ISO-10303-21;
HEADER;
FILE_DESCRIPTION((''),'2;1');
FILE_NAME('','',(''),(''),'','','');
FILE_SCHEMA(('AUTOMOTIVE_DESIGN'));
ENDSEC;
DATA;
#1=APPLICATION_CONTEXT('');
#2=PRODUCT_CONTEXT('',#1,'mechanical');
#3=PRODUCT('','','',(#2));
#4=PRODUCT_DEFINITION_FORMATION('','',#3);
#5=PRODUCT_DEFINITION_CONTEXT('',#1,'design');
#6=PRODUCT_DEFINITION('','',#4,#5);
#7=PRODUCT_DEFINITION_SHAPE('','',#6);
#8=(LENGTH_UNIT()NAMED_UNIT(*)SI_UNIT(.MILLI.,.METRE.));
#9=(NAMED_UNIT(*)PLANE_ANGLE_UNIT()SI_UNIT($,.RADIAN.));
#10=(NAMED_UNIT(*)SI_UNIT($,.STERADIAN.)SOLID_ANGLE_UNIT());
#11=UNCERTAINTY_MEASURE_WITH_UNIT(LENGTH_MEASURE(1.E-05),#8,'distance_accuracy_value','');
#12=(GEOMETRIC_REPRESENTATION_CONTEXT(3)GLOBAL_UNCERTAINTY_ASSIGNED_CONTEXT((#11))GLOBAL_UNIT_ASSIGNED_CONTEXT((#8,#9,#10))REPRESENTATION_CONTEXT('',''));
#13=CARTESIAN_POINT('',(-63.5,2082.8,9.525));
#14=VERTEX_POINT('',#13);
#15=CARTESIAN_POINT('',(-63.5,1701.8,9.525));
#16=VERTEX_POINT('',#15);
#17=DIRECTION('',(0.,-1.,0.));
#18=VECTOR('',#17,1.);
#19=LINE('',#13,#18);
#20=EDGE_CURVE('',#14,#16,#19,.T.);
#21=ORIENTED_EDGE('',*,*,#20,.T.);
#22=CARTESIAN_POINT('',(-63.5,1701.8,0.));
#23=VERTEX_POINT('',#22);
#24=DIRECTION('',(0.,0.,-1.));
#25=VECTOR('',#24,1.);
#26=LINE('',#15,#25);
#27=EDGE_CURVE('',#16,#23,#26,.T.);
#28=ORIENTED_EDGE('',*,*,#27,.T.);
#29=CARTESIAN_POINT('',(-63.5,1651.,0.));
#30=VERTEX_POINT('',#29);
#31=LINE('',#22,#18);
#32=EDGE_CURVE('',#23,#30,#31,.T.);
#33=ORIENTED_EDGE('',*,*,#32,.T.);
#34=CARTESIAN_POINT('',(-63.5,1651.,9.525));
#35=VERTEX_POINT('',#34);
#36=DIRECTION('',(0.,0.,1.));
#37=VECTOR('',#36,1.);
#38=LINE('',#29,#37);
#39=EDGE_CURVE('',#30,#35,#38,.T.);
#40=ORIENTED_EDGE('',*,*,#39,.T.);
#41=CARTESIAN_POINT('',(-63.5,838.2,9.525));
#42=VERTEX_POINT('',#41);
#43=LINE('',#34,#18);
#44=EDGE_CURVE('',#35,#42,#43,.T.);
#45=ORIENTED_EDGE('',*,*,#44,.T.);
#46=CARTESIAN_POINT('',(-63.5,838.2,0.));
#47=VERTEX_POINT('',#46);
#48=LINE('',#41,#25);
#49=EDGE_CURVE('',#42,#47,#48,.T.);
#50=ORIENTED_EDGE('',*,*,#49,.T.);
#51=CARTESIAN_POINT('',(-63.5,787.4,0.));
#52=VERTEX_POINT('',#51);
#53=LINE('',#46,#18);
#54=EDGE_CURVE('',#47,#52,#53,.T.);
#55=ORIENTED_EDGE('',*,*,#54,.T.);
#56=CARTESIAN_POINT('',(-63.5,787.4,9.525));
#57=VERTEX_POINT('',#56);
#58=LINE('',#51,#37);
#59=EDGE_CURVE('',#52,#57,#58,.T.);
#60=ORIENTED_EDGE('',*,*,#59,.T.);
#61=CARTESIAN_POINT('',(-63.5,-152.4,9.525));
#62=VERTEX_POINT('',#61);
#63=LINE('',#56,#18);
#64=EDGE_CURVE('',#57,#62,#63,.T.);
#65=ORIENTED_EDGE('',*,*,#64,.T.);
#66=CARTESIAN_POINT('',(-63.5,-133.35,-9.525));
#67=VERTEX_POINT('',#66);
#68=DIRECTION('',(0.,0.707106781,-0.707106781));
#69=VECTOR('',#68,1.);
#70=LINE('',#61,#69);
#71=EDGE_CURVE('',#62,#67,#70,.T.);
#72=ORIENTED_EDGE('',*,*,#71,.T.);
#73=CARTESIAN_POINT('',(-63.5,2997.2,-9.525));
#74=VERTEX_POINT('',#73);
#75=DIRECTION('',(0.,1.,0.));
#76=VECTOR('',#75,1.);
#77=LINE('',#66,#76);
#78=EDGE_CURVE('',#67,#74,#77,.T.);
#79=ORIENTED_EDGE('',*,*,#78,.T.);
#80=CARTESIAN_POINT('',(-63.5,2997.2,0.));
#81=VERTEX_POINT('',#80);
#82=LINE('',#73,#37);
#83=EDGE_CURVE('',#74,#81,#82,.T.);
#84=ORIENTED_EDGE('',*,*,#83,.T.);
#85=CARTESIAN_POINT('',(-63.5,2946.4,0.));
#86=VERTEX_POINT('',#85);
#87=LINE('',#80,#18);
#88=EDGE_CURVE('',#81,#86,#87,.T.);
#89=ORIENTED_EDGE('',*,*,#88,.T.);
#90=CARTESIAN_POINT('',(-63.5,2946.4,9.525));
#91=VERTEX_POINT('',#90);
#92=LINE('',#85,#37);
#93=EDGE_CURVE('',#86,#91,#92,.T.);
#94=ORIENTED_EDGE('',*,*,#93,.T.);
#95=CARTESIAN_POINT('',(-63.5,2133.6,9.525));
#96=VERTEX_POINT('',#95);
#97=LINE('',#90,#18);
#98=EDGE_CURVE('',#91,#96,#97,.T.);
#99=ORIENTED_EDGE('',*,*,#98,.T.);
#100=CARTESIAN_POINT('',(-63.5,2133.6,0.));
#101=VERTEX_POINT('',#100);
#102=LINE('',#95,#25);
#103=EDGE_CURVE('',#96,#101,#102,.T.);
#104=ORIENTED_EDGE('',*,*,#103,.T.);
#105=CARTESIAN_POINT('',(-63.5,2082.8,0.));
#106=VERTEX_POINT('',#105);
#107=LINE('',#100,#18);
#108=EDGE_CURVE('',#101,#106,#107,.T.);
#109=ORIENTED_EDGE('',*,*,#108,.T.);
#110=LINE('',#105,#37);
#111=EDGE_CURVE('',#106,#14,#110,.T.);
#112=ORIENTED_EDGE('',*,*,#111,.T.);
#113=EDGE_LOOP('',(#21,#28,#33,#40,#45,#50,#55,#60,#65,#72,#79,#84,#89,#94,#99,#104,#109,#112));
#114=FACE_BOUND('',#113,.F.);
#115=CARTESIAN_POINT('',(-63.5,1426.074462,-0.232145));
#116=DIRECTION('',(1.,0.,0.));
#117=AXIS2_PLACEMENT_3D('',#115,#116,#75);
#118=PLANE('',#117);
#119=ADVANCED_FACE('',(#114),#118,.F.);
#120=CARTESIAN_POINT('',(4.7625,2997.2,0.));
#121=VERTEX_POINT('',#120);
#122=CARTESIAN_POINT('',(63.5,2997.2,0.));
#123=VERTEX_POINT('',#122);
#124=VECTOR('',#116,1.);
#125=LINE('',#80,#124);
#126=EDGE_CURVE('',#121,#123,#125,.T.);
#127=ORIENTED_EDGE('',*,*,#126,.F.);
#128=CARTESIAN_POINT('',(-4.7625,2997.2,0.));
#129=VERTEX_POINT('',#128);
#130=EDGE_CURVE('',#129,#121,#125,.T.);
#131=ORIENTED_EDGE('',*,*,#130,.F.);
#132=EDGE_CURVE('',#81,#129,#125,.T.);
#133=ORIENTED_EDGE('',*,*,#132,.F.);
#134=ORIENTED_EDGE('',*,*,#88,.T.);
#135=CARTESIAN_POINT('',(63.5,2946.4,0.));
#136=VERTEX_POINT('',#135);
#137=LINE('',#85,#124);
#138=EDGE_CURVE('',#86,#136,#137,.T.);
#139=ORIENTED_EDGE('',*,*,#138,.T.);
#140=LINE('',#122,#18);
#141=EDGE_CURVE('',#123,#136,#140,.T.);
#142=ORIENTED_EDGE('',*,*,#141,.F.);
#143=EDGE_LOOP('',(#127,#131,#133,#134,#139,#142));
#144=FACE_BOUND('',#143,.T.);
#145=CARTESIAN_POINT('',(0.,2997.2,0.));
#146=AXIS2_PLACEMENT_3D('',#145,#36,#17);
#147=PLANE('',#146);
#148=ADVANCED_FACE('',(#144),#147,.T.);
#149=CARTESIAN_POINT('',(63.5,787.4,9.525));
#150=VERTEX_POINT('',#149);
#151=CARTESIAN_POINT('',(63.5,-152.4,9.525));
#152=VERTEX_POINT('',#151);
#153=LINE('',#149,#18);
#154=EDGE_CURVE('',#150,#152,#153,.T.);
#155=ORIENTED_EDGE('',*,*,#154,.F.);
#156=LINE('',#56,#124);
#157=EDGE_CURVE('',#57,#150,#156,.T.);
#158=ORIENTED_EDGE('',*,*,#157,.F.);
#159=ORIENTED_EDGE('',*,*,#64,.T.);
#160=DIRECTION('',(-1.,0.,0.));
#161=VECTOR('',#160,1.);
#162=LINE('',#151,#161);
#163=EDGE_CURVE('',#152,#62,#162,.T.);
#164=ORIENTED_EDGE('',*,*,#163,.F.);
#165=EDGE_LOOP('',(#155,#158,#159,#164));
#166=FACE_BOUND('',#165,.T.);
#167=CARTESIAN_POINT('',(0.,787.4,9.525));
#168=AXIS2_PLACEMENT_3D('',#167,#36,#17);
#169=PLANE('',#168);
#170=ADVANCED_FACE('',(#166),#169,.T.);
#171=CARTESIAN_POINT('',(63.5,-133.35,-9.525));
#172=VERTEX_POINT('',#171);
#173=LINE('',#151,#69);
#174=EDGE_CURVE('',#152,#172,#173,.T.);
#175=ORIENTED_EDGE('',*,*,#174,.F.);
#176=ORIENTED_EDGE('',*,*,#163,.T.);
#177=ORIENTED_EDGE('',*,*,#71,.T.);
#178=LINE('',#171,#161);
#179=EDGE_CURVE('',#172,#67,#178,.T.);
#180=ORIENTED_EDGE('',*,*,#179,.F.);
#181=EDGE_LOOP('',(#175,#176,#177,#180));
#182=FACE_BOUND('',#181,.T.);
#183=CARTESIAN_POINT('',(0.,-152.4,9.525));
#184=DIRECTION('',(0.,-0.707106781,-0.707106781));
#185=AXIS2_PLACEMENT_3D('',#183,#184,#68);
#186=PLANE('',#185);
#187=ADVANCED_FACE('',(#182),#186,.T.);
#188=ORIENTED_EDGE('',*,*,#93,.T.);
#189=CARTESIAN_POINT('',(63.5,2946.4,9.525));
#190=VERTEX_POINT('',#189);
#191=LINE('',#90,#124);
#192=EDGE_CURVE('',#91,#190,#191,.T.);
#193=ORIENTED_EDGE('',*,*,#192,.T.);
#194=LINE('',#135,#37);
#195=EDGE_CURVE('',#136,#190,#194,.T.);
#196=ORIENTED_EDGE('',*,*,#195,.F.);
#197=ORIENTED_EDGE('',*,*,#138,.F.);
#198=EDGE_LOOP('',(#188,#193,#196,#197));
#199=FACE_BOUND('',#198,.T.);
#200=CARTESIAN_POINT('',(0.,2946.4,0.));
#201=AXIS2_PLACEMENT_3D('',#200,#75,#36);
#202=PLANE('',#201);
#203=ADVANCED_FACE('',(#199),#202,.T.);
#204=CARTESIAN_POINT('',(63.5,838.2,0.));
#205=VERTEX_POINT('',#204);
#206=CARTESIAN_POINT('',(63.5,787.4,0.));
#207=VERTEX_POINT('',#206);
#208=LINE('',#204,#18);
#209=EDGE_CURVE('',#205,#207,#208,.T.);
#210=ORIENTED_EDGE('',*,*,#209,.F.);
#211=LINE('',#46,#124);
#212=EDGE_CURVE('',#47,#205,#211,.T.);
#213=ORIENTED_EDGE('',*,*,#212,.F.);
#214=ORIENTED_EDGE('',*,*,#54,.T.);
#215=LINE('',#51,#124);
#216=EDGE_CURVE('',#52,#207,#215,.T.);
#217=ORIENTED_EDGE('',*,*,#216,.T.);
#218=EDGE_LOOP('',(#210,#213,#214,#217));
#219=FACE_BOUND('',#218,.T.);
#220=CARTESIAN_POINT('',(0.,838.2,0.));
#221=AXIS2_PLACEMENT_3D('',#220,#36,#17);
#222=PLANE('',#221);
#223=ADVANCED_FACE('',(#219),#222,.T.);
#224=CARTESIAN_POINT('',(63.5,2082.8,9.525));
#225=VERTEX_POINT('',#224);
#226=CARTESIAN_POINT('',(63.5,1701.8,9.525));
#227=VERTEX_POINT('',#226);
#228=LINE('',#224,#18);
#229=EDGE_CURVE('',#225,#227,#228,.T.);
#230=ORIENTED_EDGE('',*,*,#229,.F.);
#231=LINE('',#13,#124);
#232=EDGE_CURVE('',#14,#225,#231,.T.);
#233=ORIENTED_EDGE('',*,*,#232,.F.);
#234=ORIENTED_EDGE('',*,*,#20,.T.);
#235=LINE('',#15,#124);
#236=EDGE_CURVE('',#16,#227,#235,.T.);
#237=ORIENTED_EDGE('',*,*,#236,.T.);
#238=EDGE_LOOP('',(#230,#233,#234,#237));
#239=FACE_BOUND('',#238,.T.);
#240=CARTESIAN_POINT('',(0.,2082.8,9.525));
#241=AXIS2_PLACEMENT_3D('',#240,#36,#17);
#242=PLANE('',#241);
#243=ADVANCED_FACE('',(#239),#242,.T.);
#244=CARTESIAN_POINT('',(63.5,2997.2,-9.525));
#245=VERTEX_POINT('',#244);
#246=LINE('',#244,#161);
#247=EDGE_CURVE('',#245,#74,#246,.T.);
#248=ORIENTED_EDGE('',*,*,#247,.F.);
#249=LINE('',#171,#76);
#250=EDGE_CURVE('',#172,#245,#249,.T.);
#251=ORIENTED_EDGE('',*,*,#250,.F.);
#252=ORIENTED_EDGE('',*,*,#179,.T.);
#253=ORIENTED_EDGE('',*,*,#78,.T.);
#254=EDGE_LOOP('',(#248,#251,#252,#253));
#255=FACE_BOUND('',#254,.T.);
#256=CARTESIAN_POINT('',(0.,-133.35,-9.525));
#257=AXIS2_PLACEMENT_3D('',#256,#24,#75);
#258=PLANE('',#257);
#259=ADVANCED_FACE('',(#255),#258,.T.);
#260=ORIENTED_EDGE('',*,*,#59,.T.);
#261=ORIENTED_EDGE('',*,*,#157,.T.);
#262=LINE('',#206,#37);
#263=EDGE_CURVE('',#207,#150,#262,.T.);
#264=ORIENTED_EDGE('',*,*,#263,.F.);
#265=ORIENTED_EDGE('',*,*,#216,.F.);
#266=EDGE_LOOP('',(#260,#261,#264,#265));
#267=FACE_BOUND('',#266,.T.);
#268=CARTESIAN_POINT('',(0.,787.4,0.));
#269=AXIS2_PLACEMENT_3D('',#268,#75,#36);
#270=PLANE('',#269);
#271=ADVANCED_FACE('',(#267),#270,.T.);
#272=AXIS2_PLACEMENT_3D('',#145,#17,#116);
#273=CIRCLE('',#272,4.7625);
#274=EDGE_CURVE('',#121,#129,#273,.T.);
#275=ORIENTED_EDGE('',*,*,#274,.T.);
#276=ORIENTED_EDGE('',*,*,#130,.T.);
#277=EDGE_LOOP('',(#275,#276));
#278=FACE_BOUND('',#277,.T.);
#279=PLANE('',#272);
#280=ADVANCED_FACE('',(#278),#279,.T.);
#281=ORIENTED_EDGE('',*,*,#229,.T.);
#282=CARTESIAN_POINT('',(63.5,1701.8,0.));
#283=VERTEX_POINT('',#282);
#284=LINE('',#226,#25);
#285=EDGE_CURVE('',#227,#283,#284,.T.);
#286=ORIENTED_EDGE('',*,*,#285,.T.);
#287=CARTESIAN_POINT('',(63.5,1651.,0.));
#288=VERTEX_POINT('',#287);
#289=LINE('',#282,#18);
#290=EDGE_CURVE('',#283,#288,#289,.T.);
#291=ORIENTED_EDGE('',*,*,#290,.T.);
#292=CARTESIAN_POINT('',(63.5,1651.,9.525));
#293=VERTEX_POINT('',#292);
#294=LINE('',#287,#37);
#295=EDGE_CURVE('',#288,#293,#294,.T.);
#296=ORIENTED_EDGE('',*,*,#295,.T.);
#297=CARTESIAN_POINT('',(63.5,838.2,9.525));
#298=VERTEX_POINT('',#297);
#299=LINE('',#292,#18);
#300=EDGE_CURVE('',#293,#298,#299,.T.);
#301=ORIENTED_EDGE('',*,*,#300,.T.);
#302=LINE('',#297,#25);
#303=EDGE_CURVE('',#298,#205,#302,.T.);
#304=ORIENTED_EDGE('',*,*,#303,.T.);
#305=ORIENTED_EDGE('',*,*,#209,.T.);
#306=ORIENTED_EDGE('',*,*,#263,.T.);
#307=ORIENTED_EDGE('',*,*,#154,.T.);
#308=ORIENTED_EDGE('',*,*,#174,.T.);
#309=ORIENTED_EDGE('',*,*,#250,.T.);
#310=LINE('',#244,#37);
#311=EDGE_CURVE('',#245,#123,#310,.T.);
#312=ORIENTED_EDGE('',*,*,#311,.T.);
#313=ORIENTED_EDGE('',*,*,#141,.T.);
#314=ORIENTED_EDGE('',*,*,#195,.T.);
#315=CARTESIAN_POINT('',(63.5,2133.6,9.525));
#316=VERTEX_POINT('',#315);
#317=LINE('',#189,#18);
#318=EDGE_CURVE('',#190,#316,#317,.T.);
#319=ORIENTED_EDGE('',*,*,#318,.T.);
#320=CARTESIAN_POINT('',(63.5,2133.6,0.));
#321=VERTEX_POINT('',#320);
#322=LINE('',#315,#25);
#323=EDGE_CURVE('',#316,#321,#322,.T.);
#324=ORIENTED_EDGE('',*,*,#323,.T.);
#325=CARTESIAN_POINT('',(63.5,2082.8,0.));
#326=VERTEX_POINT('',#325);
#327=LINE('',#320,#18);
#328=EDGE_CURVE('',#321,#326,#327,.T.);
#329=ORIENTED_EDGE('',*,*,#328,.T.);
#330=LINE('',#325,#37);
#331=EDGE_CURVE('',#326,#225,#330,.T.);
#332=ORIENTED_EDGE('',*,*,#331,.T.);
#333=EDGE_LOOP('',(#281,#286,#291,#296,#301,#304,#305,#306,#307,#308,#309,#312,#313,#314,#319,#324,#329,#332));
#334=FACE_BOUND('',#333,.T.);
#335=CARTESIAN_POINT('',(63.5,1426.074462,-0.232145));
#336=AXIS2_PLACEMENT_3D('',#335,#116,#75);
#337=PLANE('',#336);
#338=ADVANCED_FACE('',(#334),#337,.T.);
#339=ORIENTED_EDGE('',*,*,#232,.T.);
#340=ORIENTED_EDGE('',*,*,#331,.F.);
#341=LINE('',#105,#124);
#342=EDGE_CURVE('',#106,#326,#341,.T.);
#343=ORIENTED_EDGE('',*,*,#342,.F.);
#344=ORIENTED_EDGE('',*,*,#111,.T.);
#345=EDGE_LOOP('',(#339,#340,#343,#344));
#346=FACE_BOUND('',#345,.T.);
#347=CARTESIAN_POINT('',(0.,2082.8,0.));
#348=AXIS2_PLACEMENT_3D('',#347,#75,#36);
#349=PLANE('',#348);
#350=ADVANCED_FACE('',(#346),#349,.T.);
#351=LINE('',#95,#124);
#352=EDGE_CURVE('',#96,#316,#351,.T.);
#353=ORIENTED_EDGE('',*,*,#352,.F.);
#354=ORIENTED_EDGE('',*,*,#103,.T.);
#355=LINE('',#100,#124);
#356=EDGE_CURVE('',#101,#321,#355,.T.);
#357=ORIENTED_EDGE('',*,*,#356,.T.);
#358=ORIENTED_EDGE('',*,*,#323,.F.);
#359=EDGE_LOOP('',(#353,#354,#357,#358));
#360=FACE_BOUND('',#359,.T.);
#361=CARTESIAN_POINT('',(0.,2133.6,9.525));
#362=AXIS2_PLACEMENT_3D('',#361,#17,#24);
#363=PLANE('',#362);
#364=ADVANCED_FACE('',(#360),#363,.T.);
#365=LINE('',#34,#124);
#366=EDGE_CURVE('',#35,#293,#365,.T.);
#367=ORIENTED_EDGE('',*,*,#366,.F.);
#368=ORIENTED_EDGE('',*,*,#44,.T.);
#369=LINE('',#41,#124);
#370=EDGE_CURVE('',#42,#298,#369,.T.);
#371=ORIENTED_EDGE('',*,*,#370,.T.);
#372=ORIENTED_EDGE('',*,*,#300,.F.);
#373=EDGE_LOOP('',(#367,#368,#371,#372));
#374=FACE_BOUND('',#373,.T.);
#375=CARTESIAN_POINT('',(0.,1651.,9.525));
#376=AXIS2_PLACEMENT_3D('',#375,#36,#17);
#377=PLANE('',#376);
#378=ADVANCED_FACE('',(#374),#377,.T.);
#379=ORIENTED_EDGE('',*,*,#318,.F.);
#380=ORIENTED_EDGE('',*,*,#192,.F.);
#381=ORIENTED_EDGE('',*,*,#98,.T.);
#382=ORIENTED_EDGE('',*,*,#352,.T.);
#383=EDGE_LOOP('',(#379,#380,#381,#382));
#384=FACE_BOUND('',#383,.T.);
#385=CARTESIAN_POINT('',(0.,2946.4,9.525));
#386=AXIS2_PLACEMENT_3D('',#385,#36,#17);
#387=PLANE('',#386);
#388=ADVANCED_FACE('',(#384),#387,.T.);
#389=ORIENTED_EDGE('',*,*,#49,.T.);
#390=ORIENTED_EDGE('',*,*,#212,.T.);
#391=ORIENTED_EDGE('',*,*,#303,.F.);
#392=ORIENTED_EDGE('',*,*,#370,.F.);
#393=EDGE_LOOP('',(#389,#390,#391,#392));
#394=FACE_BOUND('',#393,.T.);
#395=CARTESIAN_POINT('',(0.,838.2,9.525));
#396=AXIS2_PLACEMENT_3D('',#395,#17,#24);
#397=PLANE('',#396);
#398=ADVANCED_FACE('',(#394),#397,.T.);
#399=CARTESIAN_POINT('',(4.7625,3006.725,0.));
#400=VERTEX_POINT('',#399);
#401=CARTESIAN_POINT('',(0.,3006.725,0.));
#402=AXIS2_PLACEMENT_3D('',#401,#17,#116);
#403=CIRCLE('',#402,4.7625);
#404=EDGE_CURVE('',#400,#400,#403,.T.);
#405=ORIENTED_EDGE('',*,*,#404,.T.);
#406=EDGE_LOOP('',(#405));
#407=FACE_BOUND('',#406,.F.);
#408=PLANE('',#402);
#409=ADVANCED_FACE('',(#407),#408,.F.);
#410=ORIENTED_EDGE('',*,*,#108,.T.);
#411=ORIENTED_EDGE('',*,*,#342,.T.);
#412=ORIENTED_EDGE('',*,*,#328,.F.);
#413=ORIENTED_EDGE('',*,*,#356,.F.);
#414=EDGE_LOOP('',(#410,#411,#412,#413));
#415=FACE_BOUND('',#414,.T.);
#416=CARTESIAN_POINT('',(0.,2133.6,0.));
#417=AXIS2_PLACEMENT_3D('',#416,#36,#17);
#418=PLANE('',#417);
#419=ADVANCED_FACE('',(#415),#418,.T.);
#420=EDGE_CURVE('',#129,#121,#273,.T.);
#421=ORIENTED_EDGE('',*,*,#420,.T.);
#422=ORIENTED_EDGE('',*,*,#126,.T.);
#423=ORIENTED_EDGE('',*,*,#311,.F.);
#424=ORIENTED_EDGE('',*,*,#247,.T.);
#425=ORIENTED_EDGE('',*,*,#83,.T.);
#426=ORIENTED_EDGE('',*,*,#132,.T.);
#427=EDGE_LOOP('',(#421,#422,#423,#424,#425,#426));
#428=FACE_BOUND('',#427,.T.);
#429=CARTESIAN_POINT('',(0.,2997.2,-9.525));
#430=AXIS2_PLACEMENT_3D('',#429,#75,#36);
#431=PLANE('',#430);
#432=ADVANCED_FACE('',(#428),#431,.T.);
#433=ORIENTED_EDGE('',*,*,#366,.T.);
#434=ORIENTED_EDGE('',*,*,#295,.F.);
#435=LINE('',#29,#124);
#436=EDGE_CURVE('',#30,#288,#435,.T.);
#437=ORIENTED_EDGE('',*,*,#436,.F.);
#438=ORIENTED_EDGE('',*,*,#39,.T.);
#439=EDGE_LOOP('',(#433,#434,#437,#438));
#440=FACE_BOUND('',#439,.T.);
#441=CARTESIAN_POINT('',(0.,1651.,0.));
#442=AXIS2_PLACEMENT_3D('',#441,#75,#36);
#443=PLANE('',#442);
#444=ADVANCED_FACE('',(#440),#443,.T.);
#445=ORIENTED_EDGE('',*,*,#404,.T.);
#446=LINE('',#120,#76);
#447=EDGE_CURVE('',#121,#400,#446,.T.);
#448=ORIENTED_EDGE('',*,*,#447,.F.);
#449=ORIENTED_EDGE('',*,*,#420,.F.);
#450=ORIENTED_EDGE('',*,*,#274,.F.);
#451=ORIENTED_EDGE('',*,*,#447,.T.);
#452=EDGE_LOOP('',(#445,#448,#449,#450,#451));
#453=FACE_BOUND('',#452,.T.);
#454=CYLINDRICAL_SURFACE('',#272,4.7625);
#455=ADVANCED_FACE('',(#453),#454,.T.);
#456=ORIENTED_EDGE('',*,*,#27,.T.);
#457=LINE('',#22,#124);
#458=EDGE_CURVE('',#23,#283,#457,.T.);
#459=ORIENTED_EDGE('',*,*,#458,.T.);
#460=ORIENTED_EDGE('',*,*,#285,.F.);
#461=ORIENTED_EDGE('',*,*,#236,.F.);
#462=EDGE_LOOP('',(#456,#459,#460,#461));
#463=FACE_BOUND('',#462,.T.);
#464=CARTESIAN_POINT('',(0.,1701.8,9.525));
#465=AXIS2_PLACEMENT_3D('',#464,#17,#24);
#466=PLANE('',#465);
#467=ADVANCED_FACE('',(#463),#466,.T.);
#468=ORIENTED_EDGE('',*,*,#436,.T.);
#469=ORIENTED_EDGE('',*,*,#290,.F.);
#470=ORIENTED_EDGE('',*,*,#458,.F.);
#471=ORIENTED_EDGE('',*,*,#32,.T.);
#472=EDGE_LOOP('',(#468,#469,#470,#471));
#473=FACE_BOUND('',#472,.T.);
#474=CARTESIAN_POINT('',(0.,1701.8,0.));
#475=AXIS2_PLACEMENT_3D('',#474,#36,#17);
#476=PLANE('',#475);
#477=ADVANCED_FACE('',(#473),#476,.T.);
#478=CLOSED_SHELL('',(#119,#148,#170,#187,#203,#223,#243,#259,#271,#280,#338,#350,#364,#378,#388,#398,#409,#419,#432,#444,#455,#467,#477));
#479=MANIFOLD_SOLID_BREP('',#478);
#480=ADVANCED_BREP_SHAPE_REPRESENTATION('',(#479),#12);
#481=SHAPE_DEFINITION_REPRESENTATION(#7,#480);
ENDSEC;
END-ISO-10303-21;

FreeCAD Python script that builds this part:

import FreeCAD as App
import Part
import Sketcher

V = App.Vector
Q = App.Units.Quantity

doc = App.newDocument("Part")
body = doc.addObject("PartDesign::Body", "Body")

# Sketch on YZ plane
sketch1 = body.newObject("Sketcher::SketchObject", "Sketch")
sketch1.AttachmentSupport = (doc.getObject("YZ_Plane"), [""])
sketch1.MapMode = "FlatFace"
sketch1.addGeometry([
    Part.LineSegment(V(2997, -10, 0), V(2997, 0, 0)),  # 0
    Part.LineSegment(V(2997, 0, 0), V(2946, 0, 0)),  # 1
    Part.LineSegment(V(2946, 0, 0), V(2946, 10, 0)),  # 2
    Part.LineSegment(V(2946, 10, 0), V(2134, 10, 0)),  # 3
    Part.LineSegment(V(2134, 10, 0), V(2134, 0, 0)),  # 4
    Part.LineSegment(V(2134, 0, 0), V(2083, 0, 0)),  # 5
    Part.LineSegment(V(2083, 0, 0), V(2083, 10, 0)),  # 6
    Part.LineSegment(V(2083, 10, 0), V(1702, 10, 0)),  # 7
    Part.LineSegment(V(1702, 10, 0), V(1702, 0, 0)),  # 8
    Part.LineSegment(V(1702, 0, 0), V(1651, 0, 0)),  # 9
    Part.LineSegment(V(1651, 0, 0), V(1651, 10, 0)),  # 10
    Part.LineSegment(V(1651, 10, 0), V(838, 10, 0)),  # 11
    Part.LineSegment(V(838, 10, 0), V(838, 0, 0)),  # 12
    Part.LineSegment(V(838, 0, 0), V(787, 0, 0)),  # 13
    Part.LineSegment(V(787, 0, 0), V(787, 10, 0)),  # 14
    Part.LineSegment(V(787, 10, 0), V(-152, 10, 0)),  # 15
    Part.LineSegment(V(-152, 10, 0), V(-133, -10, 0)),  # 16
    Part.LineSegment(V(-133, -10, 0), V(2997, -10, 0)),  # 17
], False)
sketch1.addConstraint([
    Sketcher.Constraint("Coincident", 0, 2, 1, 1),
    Sketcher.Constraint("Coincident", 1, 2, 2, 1),
    Sketcher.Constraint("Coincident", 2, 2, 3, 1),
    Sketcher.Constraint("Coincident", 3, 2, 4, 1),
    Sketcher.Constraint("Coincident", 4, 2, 5, 1),
    Sketcher.Constraint("Coincident", 5, 2, 6, 1),
    Sketcher.Constraint("Coincident", 6, 2, 7, 1),
    Sketcher.Constraint("Coincident", 7, 2, 8, 1),
    Sketcher.Constraint("Coincident", 8, 2, 9, 1),
    Sketcher.Constraint("Coincident", 9, 2, 10, 1),
    Sketcher.Constraint("Coincident", 10, 2, 11, 1),
    Sketcher.Constraint("Coincident", 11, 2, 12, 1),
    Sketcher.Constraint("Coincident", 12, 2, 13, 1),
    Sketcher.Constraint("Coincident", 13, 2, 14, 1),
    Sketcher.Constraint("Coincident", 14, 2, 15, 1),
    Sketcher.Constraint("Coincident", 15, 2, 16, 1),
    Sketcher.Constraint("Coincident", 16, 2, 17, 1),
    Sketcher.Constraint("Coincident", 17, 2, 0, 1),
    Sketcher.Constraint("Vertical", 0),
    Sketcher.Constraint("Horizontal", 1),
    Sketcher.Constraint("Vertical", 2),
    Sketcher.Constraint("Horizontal", 3),
    Sketcher.Constraint("Vertical", 4),
    Sketcher.Constraint("Horizontal", 5),
    Sketcher.Constraint("Vertical", 6),
    Sketcher.Constraint("Horizontal", 7),
    Sketcher.Constraint("Vertical", 8),
    Sketcher.Constraint("Horizontal", 9),
    Sketcher.Constraint("Vertical", 10),
    Sketcher.Constraint("Horizontal", 11),
    Sketcher.Constraint("Vertical", 12),
    Sketcher.Constraint("Horizontal", 13),
    Sketcher.Constraint("Vertical", 14),
    Sketcher.Constraint("Horizontal", 15),
    Sketcher.Constraint("Horizontal", 17),
    Sketcher.Constraint("PointOnObject", 0, 2, -1),
    Sketcher.Constraint("PointOnObject", 4, 2, -1),
    Sketcher.Constraint("PointOnObject", 8, 2, -1),
    Sketcher.Constraint("PointOnObject", 12, 2, -1),
    Sketcher.Constraint("Horizontal", 3, 2, 6, 2),
    Sketcher.Constraint("Horizontal", 7, 2, 10, 2),
    Sketcher.Constraint("Horizontal", 11, 2, 14, 2),
    Sketcher.Constraint("Equal", 1, 5),
    Sketcher.Constraint("Equal", 5, 9),
    Sketcher.Constraint("Equal", 3, 11),
    Sketcher.Constraint("Equal", 9, 13),
    Sketcher.Constraint("Equal", 0, 2),
    Sketcher.Constraint("DistanceX", 1, 2, 1, 1, Q("2 in")),
    Sketcher.Constraint("DistanceX", 3, 2, 3, 1, Q("32 in")),
    Sketcher.Constraint("DistanceX", 7, 2, 7, 1, Q("15 in")),
    Sketcher.Constraint("DistanceX", 15, 2, 15, 1, Q("37 in")),
    Sketcher.Constraint("DistanceX", -1, 1, 0, 2, Q("118 in")),
    Sketcher.Constraint("Angle", 16, Q("-45 deg")),
    Sketcher.Constraint("DistanceX", 17, 1, 17, 2, Q("123.25 in")),
])
pad1 = body.newObject("PartDesign::Pad", "Pad")
pad1.Profile = sketch1
pad1.Length = Q("5 in")
pad1.Midplane = True

# Sketch on XZ plane
sketch2 = body.newObject("Sketcher::SketchObject", "Sketch001")
sketch2.AttachmentSupport = (doc.getObject("XZ_Plane"), [""])
sketch2.MapMode = "FlatFace"
sketch2.AttachmentOffset = App.Placement(V(0, 0, -118 * 25.4), App.Rotation())
sketch2.addGeometry(Part.Circle(V(0, 0, 0), V(0, 0, 1), 4.8), False)
sketch2.addConstraint([
    Sketcher.Constraint("Coincident", 0, 3, -1, 1),
    Sketcher.Constraint("Diameter", 0, Q("0.375 in")),
])
pad2 = body.newObject("PartDesign::Pad", "Pad001")
pad2.Profile = sketch2
pad2.Length = Q("0.375 in")
pad2.Reversed = True

doc.recompute()
